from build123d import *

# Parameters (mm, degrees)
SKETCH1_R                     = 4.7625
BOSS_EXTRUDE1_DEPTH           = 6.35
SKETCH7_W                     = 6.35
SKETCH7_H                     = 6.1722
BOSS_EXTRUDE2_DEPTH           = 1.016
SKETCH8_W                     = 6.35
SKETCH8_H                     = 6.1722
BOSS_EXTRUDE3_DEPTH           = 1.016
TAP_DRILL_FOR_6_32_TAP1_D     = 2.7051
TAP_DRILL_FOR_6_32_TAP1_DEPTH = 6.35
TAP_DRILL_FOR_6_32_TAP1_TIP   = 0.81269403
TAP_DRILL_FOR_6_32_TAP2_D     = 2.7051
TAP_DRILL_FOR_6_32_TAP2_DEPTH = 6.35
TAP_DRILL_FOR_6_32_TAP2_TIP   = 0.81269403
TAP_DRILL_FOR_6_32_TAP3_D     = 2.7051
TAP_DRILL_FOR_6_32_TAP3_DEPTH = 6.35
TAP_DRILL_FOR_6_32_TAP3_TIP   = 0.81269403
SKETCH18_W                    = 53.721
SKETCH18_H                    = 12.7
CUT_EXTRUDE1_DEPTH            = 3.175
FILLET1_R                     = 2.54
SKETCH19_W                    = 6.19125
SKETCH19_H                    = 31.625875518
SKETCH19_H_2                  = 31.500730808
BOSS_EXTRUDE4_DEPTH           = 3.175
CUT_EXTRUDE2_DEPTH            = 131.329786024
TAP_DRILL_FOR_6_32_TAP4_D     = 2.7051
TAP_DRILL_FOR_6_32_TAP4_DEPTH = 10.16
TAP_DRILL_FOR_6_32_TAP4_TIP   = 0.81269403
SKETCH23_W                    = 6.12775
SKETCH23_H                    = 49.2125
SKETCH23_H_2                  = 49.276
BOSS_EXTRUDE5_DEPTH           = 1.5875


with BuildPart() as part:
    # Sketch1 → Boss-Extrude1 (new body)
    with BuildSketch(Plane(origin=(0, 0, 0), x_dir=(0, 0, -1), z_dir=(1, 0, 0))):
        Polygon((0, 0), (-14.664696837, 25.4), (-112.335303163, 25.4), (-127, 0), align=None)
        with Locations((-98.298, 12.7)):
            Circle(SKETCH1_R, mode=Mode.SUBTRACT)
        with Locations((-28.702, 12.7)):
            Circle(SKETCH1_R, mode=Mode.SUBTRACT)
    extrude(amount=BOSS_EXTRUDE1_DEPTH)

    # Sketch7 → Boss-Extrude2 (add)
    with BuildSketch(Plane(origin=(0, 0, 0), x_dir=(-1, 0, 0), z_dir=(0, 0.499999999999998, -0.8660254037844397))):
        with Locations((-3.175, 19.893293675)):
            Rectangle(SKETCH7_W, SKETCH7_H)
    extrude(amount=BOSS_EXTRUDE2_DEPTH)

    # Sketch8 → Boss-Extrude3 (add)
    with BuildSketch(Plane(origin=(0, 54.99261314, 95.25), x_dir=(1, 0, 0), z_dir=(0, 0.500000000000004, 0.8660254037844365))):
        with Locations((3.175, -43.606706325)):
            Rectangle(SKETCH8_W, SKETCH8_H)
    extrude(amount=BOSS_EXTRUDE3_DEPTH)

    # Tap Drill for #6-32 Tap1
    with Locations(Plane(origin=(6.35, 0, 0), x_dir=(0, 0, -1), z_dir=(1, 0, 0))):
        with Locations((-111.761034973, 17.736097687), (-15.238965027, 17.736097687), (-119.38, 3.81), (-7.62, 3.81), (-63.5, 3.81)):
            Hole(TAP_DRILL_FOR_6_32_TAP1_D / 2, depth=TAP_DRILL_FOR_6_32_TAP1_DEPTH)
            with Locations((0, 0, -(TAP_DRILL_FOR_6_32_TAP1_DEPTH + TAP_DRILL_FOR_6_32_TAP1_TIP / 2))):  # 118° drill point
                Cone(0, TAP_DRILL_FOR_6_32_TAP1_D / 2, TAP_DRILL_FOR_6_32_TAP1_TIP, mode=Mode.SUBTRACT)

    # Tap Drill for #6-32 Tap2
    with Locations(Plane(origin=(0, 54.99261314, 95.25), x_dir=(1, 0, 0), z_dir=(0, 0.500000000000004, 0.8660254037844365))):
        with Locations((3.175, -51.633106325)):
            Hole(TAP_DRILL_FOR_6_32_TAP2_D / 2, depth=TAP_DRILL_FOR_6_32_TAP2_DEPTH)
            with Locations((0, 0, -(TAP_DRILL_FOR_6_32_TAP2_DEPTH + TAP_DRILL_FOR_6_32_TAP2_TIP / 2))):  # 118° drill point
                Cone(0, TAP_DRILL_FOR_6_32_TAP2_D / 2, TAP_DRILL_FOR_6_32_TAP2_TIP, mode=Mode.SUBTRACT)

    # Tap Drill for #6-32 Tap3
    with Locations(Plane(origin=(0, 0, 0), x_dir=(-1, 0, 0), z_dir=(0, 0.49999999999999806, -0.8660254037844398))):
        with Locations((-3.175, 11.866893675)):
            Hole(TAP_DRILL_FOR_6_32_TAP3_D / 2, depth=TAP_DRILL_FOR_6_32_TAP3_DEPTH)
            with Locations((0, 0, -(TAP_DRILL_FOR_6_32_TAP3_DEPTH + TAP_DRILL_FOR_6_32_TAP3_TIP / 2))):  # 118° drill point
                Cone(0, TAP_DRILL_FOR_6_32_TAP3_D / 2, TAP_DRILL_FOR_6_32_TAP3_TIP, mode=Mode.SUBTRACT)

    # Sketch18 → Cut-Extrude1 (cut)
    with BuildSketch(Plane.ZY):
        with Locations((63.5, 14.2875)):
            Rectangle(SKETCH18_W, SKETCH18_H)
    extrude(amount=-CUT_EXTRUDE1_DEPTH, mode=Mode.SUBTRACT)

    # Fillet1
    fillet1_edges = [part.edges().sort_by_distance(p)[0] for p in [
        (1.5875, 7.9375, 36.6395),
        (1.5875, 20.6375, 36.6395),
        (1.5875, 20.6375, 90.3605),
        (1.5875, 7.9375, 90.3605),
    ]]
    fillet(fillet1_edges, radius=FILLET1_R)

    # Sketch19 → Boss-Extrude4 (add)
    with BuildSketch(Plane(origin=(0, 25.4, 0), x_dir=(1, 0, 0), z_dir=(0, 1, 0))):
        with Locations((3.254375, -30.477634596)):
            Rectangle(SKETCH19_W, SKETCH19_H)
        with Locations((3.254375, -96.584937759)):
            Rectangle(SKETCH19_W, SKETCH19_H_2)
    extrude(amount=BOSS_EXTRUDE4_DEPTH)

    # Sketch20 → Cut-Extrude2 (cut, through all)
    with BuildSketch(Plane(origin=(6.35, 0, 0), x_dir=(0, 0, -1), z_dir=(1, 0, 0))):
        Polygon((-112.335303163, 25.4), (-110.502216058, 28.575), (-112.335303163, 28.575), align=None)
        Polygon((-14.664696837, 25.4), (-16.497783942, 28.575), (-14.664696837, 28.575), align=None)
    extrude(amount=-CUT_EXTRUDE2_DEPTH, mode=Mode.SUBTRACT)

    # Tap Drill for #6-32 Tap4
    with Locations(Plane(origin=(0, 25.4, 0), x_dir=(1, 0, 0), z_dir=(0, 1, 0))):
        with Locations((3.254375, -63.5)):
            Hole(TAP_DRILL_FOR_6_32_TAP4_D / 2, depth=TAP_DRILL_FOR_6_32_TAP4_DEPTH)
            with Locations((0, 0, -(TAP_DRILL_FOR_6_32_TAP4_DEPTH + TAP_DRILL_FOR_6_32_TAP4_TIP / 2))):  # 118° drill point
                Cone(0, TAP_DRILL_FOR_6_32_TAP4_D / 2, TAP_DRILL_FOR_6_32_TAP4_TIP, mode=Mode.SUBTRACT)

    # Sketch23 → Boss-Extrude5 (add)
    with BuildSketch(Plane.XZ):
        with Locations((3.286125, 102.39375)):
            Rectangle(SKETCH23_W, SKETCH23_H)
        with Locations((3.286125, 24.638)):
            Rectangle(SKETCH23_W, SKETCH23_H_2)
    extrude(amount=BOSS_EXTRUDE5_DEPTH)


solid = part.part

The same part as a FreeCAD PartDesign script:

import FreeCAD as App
import Part
import Sketcher
Q = App.Units.Quantity


def edges_at(feature, points):
    """Names of the edges that pass closest to the given points."""
    edges = feature.Shape.Edges
    near = lambda p: min(range(len(edges)), key=lambda i: edges[i].distToShape(Part.Vertex(*p))[0])
    return sorted({f"Edge{near(p) + 1}" for p in points})


def add_polygon(sketch, points):
    """Adds a closed chain of lines whose ends are joined by coincident constraints."""
    first, n = sketch.GeometryCount, len(points)
    for a, b in zip(points, points[1:] + points[:1]):
        sketch.addGeometry(Part.LineSegment(App.Vector(*a, 0), App.Vector(*b, 0)), False)
    for i in range(n):
        sketch.addConstraint(Sketcher.Constraint("Coincident", first + i, 2, first + (i + 1) % n, 1))

doc = App.newDocument("Part")
body = doc.addObject("PartDesign::Body", "Body")

sketch1 = doc.addObject("Sketcher::SketchObject", "Sketch")
body.addObject(sketch1)
sketch1.AttachmentSupport = (doc.YZ_Plane, [""])
sketch1.MapMode = "FlatFace"
add_polygon(sketch1, [(0, 0), (25.4, 14.7), (25.4, 112.3), (0, 127)])
sketch1.addGeometry(Part.Circle(App.Vector(12.7, 98.3, 0), App.Vector(0, 0, 1), 4.8), False)
sketch1.addGeometry(Part.Circle(App.Vector(12.7, 28.7, 0), App.Vector(0, 0, 1), 4.8), False)
sketch1.addConstraint(Sketcher.Constraint("Vertical", 1))
sketch1.addConstraint(Sketcher.Constraint("Vertical", 3))
sketch1.addConstraint(Sketcher.Constraint("Coincident", 3, 2, -1, 1))
sketch1.addConstraint(Sketcher.Constraint("Equal", 4, 5))
sketch1.addConstraint(Sketcher.Constraint("Vertical", 4, 3, 5, 3))
sketch1.addConstraint(Sketcher.Constraint("Equal", 0, 2))
sketch1.addConstraint(Sketcher.Constraint("DistanceY", 3, 2, 3, 1, Q("5 in")))
sketch1.addConstraint(Sketcher.Constraint("Diameter", 4, Q("0.375 in")))
sketch1.addConstraint(Sketcher.Constraint("DistanceX", -1, 1, 0, 2, Q("1 in")))
sketch1.addConstraint(Sketcher.Constraint("Angle", 0, Q("30 deg")))
sketch1.addConstraint(Sketcher.Constraint("DistanceX", -1, 1, 4, 3, Q("0.5 in")))
sketch1.addConstraint(Sketcher.Constraint("DistanceY", -1, 1, 4, 3, Q("3.87 in")))
sketch1.addConstraint(Sketcher.Constraint("DistanceY", -1, 1, 5, 3, Q("1.13 in")))
pad1 = doc.addObject("PartDesign::Pad", "Pad")
body.addObject(pad1)
pad1.Profile = sketch1
pad1.Length = Q("0.25 in")

sketch2 = doc.addObject("Sketcher::SketchObject", "Sketch001")
body.addObject(sketch2)
sketch2.Placement = App.Placement(App.Vector(0, 0, 0), App.Rotation(App.Vector(-1, 0, 0), App.Vector(0, 0.866025404, 0.5), App.Vector(0, 0.5, -0.866025404), "ZXY"))
add_polygon(sketch2, [(-6, 23), (-6, 17), (0, 17), (0, 23)])
sketch2.addConstraint(Sketcher.Constraint("Vertical", 0))
sketch2.addConstraint(Sketcher.Constraint("Horizontal", 1))
sketch2.addConstraint(Sketcher.Constraint("Vertical", 2))
sketch2.addConstraint(Sketcher.Constraint("Horizontal", 3))
sketch2.addConstraint(Sketcher.Constraint("PointOnObject", 1, 2, -2))
sketch2.addConstraint(Sketcher.Constraint("DistanceX", 1, 1, 1, 2, Q("0.25 in")))
sketch2.addConstraint(Sketcher.Constraint("DistanceY", 0, 2, 0, 1, Q("0.243 in")))
sketch2.addConstraint(Sketcher.Constraint("DistanceY", -1, 1, 0, 2, 16.807194))
pad2 = doc.addObject("PartDesign::Pad", "Pad001")
body.addObject(pad2)
pad2.Profile = sketch2
pad2.Length = Q("0.04 in")

sketch3 = doc.addObject("Sketcher::SketchObject", "Sketch002")
body.addObject(sketch3)
sketch3.Placement = App.Placement(App.Vector(0, 54.992613, 95.25), App.Rotation(App.Vector(1, 0, 0), App.Vector(0, 0.866025404, -0.5), App.Vector(0, 0.5, 0.866025404), "ZXY"))
add_polygon(sketch3, [(0, -41), (0, -47), (6, -47), (6, -41)])
sketch3.addConstraint(Sketcher.Constraint("Vertical", 0))
sketch3.addConstraint(Sketcher.Constraint("Horizontal", 1))
sketch3.addConstraint(Sketcher.Constraint("Vertical", 2))
sketch3.addConstraint(Sketcher.Constraint("Horizontal", 3))
sketch3.addConstraint(Sketcher.Constraint("PointOnObject", 0, 2, -2))
sketch3.addConstraint(Sketcher.Constraint("DistanceX", 1, 1, 1, 2, Q("0.25 in")))
sketch3.addConstraint(Sketcher.Constraint("DistanceY", 0, 2, 0, 1, Q("0.243 in")))
sketch3.addConstraint(Sketcher.Constraint("DistanceY", 0, 2, -1, 1, 46.692806))
pad3 = doc.addObject("PartDesign::Pad", "Pad002")
body.addObject(pad3)
pad3.Profile = sketch3
pad3.Length = Q("0.04 in")

sketch4 = doc.addObject("Sketcher::SketchObject", "Sketch003")
body.addObject(sketch4)
sketch4.AttachmentSupport = (doc.YZ_Plane, [""])
sketch4.MapMode = "FlatFace"
sketch4.AttachmentOffset = App.Placement(App.Vector(0, 0, 0.25 * 25.4), App.Rotation())
sketch4.addGeometry(Part.Circle(App.Vector(17.7, 111.8, 0), App.Vector(0, 0, 1), 1.4), False)
sketch4.addGeometry(Part.Circle(App.Vector(17.7, 15.2, 0), App.Vector(0, 0, 1), 1.4), False)
sketch4.addGeometry(Part.Circle(App.Vector(3.8, 119.4, 0), App.Vector(0, 0, 1), 1.4), False)
sketch4.addGeometry(Part.Circle(App.Vector(3.8, 7.6, 0), App.Vector(0, 0, 1), 1.4), False)
sketch4.addGeometry(Part.Circle(App.Vector(3.8, 63.5, 0), App.Vector(0, 0, 1), 1.4), False)
sketch4.addConstraint(Sketcher.Constraint("Equal", 0, 1))
sketch4.addConstraint(Sketcher.Constraint("Equal", 1, 2))
sketch4.addConstraint(Sketcher.Constraint("Equal", 2, 3))
sketch4.addConstraint(Sketcher.Constraint("Equal", 3, 4))
sketch4.addConstraint(Sketcher.Constraint("Vertical", 0, 3, 1, 3))
sketch4.addConstraint(Sketcher.Constraint("Vertical", 2, 3, 3, 3))
sketch4.addConstraint(Sketcher.Constraint("Vertical", 3, 3, 4, 3))
sketch4.addConstraint(Sketcher.Constraint("Diameter", 0, Q("0.1065 in")))
sketch4.addConstraint(Sketcher.Constraint("DistanceY", -1, 1, 2, 3, Q("4.7 in")))
sketch4.addConstraint(Sketcher.Constraint("DistanceY", -1, 1, 3, 3, Q("0.3 in")))
sketch4.addConstraint(Sketcher.Constraint("DistanceY", -1, 1, 4, 3, Q("2.5 in")))
sketch4.addConstraint(Sketcher.Constraint("DistanceX", -1, 1, 2, 3, Q("0.15 in")))
sketch4.addConstraint(Sketcher.Constraint("DistanceY", 1, 3, 0, 3, 96.52207))
sketch4.addConstraint(Sketcher.Constraint("DistanceX", -1, 1, 0, 3, 17.736098))
sketch4.addConstraint(Sketcher.Constraint("DistanceY", -1, 1, 0, 3, 111.761035))
doc.recompute()
hole = doc.addObject("PartDesign::Hole", "Hole")
body.addObject(hole)
hole.Profile = sketch4
hole.ThreadType = "None"
hole.Diameter = Q("0.1065 in")
hole.DepthType = "Dimension"
hole.Depth = Q("0.25 in")
hole.DrillPoint = "Angled"
hole.DrillPointAngle = 118

sketch5 = doc.addObject("Sketcher::SketchObject", "Sketch004")
body.addObject(sketch5)
sketch5.Placement = App.Placement(App.Vector(0, 54.992613, 95.25), App.Rotation(App.Vector(1, 0, 0), App.Vector(0, 0.866025404, -0.5), App.Vector(0, 0.5, 0.866025404), "ZXY"))
sketch5.addGeometry(Part.Circle(App.Vector(3.2, -51.6, 0), App.Vector(0, 0, 1), 1.4), False)
sketch5.addConstraint(Sketcher.Constraint("Diameter", 0, Q("0.1065 in")))
sketch5.addConstraint(Sketcher.Constraint("DistanceX", -1, 1, 0, 3, Q("0.125 in")))
sketch5.addConstraint(Sketcher.Constraint("DistanceY", 0, 3, -1, 1, 51.633106))
doc.recompute()
hole2 = doc.addObject("PartDesign::Hole", "Hole001")
body.addObject(hole2)
hole2.Profile = sketch5
hole2.ThreadType = "None"
hole2.Diameter = Q("0.1065 in")
hole2.DepthType = "Dimension"
hole2.Depth = Q("0.25 in")
hole2.DrillPoint = "Angled"
hole2.DrillPointAngle = 118

sketch6 = doc.addObject("Sketcher::SketchObject", "Sketch005")
body.addObject(sketch6)
sketch6.Placement = App.Placement(App.Vector(0, 0, 0), App.Rotation(App.Vector(-1, 0, 0), App.Vector(0, 0.866025404, 0.5), App.Vector(0, 0.5, -0.866025404), "ZXY"))
sketch6.addGeometry(Part.Circle(App.Vector(-3.2, 11.9, 0), App.Vector(0, 0, 1), 1.4), False)
sketch6.addConstraint(Sketcher.Constraint("Diameter", 0, Q("0.1065 in")))
sketch6.addConstraint(Sketcher.Constraint("DistanceX", 0, 3, -1, 1, Q("0.125 in")))
sketch6.addConstraint(Sketcher.Constraint("DistanceY", -1, 1, 0, 3, 11.866894))
doc.recompute()
hole3 = doc.addObject("PartDesign::Hole", "Hole002")
body.addObject(hole3)
hole3.Profile = sketch6
hole3.ThreadType = "None"
hole3.Diameter = Q("0.1065 in")
hole3.DepthType = "Dimension"
hole3.Depth = Q("0.25 in")
hole3.DrillPoint = "Angled"
hole3.DrillPointAngle = 118

sketch7 = doc.addObject("Sketcher::SketchObject", "Sketch006")
body.addObject(sketch7)
sketch7.AttachmentSupport = (doc.YZ_Plane, [""])
sketch7.MapMode = "FlatFace"
add_polygon(sketch7, [(21, 37), (8, 37), (8, 90), (21, 90)])
sketch7.addConstraint(Sketcher.Constraint("Horizontal", 0))
sketch7.addConstraint(Sketcher.Constraint("Vertical", 1))
sketch7.addConstraint(Sketcher.Constraint("Horizontal", 2))
sketch7.addConstraint(Sketcher.Constraint("Vertical", 3))
sketch7.addConstraint(Sketcher.Constraint("DistanceX", 0, 2, 0, 1, Q("0.5 in")))
sketch7.addConstraint(Sketcher.Constraint("DistanceY", 1, 1, 1, 2, Q("2.115 in")))
sketch7.addConstraint(Sketcher.Constraint("DistanceX", -1, 1, 0, 2, Q("0.3125 in")))
sketch7.addConstraint(Sketcher.Constraint("DistanceY", -1, 1, 0, 2, Q("1.4425 in")))
pocket1 = doc.addObject("PartDesign::Pocket", "Pocket")
body.addObject(pocket1)
pocket1.Profile = sketch7
pocket1.Length = Q("0.125 in")
pocket1.Reversed = True
doc.recompute()

fillet = doc.addObject("PartDesign::Fillet", "Fillet")
body.addObject(fillet)
fillet.Base = (pocket1, edges_at(pocket1, [
    (1.587, 7.938, 36.639),
    (1.587, 20.637, 36.639),
    (1.587, 20.637, 90.361),
    (1.587, 7.938, 90.361),
]))
fillet.Radius = Q("0.1 in")

sketch8 = doc.addObject("Sketcher::SketchObject", "Sketch007")
body.addObject(sketch8)
sketch8.AttachmentSupport = (doc.XZ_Plane, [""])
sketch8.MapMode = "FlatFace"
sketch8.AttachmentOffset = App.Placement(App.Vector(0, 0, -1 * 25.4), App.Rotation())
add_polygon(sketch8, [(0, 15), (0, 46), (6, 46), (6, 15)])
add_polygon(sketch8, [(0, 81), (0, 112), (6, 112), (6, 81)])
sketch8.addConstraint(Sketcher.Constraint("Vertical", 0))
sketch8.addConstraint(Sketcher.Constraint("Horizontal", 1))
sketch8.addConstraint(Sketcher.Constraint("Vertical", 2))
sketch8.addConstraint(Sketcher.Constraint("Horizontal", 3))
sketch8.addConstraint(Sketcher.Constraint("Vertical", 4))
sketch8.addConstraint(Sketcher.Constraint("Horizontal", 5))
sketch8.addConstraint(Sketcher.Constraint("Vertical", 6))
sketch8.addConstraint(Sketcher.Constraint("Horizontal", 7))
sketch8.addConstraint(Sketcher.Constraint("Vertical", 3, 2, 4, 2))
sketch8.addConstraint(Sketcher.Constraint("Vertical", 2, 2, 5, 2))
sketch8.addConstraint(Sketcher.Constraint("DistanceX", -1, 1, 1, 2, Q("0.25 in")))
sketch8.addConstraint(Sketcher.Constraint("DistanceY", 1, 2, 6, 2, Q("1.36 in")))
sketch8.addConstraint(Sketcher.Constraint("DistanceX", 1, 1, 1, 2, 6.19125))
sketch8.addConstraint(Sketcher.Constraint("DistanceY", 4, 1, 4, 2, 31.500731))
sketch8.addConstraint(Sketcher.Constraint("DistanceY", 0, 1, 0, 2, 31.625876))
sketch8.addConstraint(Sketcher.Constraint("DistanceY", -1, 1, 0, 2, 46.290572))
pad4 = doc.addObject("PartDesign::Pad", "Pad003")
body.addObject(pad4)
pad4.Profile = sketch8
pad4.Length = Q("0.125 in")
pad4.Reversed = True

sketch9 = doc.addObject("Sketcher::SketchObject", "Sketch008")
body.addObject(sketch9)
sketch9.AttachmentSupport = (doc.YZ_Plane, [""])
sketch9.MapMode = "FlatFace"
sketch9.AttachmentOffset = App.Placement(App.Vector(0, 0, 0.25 * 25.4), App.Rotation())
add_polygon(sketch9, [(25.4, 112.3), (28.6, 110.5), (28.6, 112.3)])
add_polygon(sketch9, [(28.6, 16.5), (25.4, 14.7), (28.6, 14.7)])
sketch9.addConstraint(Sketcher.Constraint("Vertical", 1))
sketch9.addConstraint(Sketcher.Constraint("Horizontal", 2))
sketch9.addConstraint(Sketcher.Constraint("Horizontal", 4))
sketch9.addConstraint(Sketcher.Constraint("Vertical", 5))
sketch9.addConstraint(Sketcher.Constraint("Vertical", 2, 2, 3, 2))
sketch9.addConstraint(Sketcher.Constraint("Vertical", 1, 2, 4, 2))
sketch9.addConstraint(Sketcher.Constraint("Equal", 1, 5))
sketch9.addConstraint(Sketcher.Constraint("DistanceX", -1, 1, 2, 2, Q("1 in")))
sketch9.addConstraint(Sketcher.Constraint("Angle", 0, Q("-30 deg")))
sketch9.addConstraint(Sketcher.Constraint("DistanceX", 2, 2, 2, 1, Q("0.125 in")))
sketch9.addConstraint(Sketcher.Constraint("DistanceY", 3, 2, 0, 2, 95.837519))
sketch9.addConstraint(Sketcher.Constraint("DistanceY", -1, 1, 0, 2, 110.502216))
pocket2 = doc.addObject("PartDesign::Pocket", "Pocket001")
body.addObject(pocket2)
pocket2.Profile = sketch9
pocket2.Type = "ThroughAll"

sketch10 = doc.addObject("Sketcher::SketchObject", "Sketch009")
body.addObject(sketch10)
sketch10.AttachmentSupport = (doc.XZ_Plane, [""])
sketch10.MapMode = "FlatFace"
sketch10.AttachmentOffset = App.Placement(App.Vector(0, 0, -1 * 25.4), App.Rotation())
sketch10.addGeometry(Part.Circle(App.Vector(3.3, 63.5, 0), App.Vector(0, 0, 1), 1.4), False)
sketch10.addConstraint(Sketcher.Constraint("Diameter", 0, Q("0.1065 in")))
sketch10.addConstraint(Sketcher.Constraint("DistanceY", -1, 1, 0, 3, Q("2.5 in")))
sketch10.addConstraint(Sketcher.Constraint("DistanceX", -1, 1, 0, 3, 3.254375))
doc.recompute()
hole4 = doc.addObject("PartDesign::Hole", "Hole003")
body.addObject(hole4)
hole4.Profile = sketch10
hole4.ThreadType = "None"
hole4.Diameter = Q("0.1065 in")
hole4.DepthType = "Dimension"
hole4.Depth = Q("0.4 in")
hole4.DrillPoint = "Angled"
hole4.DrillPointAngle = 118
hole4.Reversed = True

sketch11 = doc.addObject("Sketcher::SketchObject", "Sketch010")
body.addObject(sketch11)
sketch11.AttachmentSupport = (doc.XZ_Plane, [""])
sketch11.MapMode = "FlatFace"
add_polygon(sketch11, [(0, 127), (0, 78), (6, 78), (6, 127)])
add_polygon(sketch11, [(0, 49), (0, 0), (6, 0), (6, 49)])
sketch11.addConstraint(Sketcher.Constraint("Vertical", 0))
sketch11.addConstraint(Sketcher.Constraint("Horizontal", 1))
sketch11.addConstraint(Sketcher.Constraint("Vertical", 2))
sketch11.addConstraint(Sketcher.Constraint("Horizontal", 3))
sketch11.addConstraint(Sketcher.Constraint("Vertical", 4))
sketch11.addConstraint(Sketcher.Constraint("Horizontal", 5))
sketch11.addConstraint(Sketcher.Constraint("Vertical", 6))
sketch11.addConstraint(Sketcher.Constraint("Horizontal", 7))
sketch11.addConstraint(Sketcher.Constraint("PointOnObject", 4, 2, -1))
sketch11.addConstraint(Sketcher.Constraint("Vertical", 3, 2, 4, 2))
sketch11.addConstraint(Sketcher.Constraint("Vertical", 2, 2, 5, 2))
sketch11.addConstraint(Sketcher.Constraint("DistanceY", -1, 1, 2, 2, Q("5 in")))
sketch11.addConstraint(Sketcher.Constraint("DistanceY", 4, 2, 4, 1, Q("1.94 in")))
sketch11.addConstraint(Sketcher.Constraint("DistanceY", 0, 2, 0, 1, Q("1.9375 in")))
sketch11.addConstraint(Sketcher.Constraint("DistanceX", -1, 1, 1, 2, Q("0.25 in")))
sketch11.addConstraint(Sketcher.Constraint("DistanceX", 1, 1, 1, 2, 6.12775))
pad5 = doc.addObject("PartDesign::Pad", "Pad004")
body.addObject(pad5)
pad5.Profile = sketch11
pad5.Length = Q("0.0625 in")

doc.recompute()
